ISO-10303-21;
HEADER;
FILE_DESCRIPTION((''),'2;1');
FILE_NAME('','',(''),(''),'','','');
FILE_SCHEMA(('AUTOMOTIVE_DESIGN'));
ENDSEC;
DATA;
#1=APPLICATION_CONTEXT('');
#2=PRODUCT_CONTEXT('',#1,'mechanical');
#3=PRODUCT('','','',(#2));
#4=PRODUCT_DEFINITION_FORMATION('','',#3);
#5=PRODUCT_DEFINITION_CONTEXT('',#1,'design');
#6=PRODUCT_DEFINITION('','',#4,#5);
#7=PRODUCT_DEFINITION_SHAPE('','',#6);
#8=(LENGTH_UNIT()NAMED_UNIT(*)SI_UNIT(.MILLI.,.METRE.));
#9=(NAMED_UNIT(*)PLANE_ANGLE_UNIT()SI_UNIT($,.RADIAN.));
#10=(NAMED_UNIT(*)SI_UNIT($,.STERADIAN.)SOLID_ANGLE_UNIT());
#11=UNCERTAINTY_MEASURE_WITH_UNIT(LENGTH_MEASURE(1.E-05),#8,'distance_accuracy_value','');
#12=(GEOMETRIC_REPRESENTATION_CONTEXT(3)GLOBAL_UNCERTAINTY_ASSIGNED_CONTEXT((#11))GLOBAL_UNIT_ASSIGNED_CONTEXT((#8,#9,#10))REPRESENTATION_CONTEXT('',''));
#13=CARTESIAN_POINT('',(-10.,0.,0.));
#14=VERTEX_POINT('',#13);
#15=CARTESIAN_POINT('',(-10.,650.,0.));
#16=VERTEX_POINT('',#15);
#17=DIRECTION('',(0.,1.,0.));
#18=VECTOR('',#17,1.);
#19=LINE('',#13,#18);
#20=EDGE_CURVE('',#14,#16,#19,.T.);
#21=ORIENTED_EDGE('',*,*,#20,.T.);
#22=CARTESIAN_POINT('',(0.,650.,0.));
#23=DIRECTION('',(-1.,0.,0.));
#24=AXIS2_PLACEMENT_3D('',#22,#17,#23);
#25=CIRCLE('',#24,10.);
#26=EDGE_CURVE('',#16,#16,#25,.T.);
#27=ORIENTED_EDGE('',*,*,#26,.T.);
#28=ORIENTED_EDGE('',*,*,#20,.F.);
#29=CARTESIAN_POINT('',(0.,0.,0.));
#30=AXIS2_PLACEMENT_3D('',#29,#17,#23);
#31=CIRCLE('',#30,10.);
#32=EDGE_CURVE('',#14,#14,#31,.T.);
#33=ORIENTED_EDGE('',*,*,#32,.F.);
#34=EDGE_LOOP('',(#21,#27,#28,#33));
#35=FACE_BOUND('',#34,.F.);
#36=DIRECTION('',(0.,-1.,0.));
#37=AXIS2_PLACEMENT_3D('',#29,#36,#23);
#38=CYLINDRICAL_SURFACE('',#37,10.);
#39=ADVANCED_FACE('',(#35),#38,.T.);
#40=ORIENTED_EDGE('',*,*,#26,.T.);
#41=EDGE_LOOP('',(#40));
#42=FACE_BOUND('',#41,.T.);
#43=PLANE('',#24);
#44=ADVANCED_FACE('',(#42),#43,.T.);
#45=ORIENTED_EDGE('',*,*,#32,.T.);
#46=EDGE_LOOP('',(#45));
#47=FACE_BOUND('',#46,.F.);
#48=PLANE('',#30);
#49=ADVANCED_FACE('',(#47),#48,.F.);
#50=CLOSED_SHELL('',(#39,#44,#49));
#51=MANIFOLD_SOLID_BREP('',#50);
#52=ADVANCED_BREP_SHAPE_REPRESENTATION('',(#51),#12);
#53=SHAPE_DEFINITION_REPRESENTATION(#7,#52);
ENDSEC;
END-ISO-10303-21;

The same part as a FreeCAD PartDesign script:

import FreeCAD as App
import Part
import Sketcher
Q = App.Units.Quantity

doc = App.newDocument("Part")
body = doc.addObject("PartDesign::Body", "Body")

# Sketch on XZ plane
sketch1 = body.newObject("Sketcher::SketchObject", "Sketch")
sketch1.AttachmentSupport = (doc.getObject("XZ_Plane"), [""])
sketch1.MapMode = "FlatFace"
sketch1.addGeometry(Part.Circle(App.Vector(0, 0, 0), App.Vector(0, 0, 1), 10), False)
sketch1.addConstraint([
    Sketcher.Constraint("Coincident", 0, 3, -1, 1),
    Sketcher.Constraint("Diameter", 0, Q("20 mm")),
])
pad1 = body.newObject("PartDesign::Pad", "Pad")
pad1.Profile = sketch1
pad1.Length = 650
pad1.Reversed = True

doc.recompute()
